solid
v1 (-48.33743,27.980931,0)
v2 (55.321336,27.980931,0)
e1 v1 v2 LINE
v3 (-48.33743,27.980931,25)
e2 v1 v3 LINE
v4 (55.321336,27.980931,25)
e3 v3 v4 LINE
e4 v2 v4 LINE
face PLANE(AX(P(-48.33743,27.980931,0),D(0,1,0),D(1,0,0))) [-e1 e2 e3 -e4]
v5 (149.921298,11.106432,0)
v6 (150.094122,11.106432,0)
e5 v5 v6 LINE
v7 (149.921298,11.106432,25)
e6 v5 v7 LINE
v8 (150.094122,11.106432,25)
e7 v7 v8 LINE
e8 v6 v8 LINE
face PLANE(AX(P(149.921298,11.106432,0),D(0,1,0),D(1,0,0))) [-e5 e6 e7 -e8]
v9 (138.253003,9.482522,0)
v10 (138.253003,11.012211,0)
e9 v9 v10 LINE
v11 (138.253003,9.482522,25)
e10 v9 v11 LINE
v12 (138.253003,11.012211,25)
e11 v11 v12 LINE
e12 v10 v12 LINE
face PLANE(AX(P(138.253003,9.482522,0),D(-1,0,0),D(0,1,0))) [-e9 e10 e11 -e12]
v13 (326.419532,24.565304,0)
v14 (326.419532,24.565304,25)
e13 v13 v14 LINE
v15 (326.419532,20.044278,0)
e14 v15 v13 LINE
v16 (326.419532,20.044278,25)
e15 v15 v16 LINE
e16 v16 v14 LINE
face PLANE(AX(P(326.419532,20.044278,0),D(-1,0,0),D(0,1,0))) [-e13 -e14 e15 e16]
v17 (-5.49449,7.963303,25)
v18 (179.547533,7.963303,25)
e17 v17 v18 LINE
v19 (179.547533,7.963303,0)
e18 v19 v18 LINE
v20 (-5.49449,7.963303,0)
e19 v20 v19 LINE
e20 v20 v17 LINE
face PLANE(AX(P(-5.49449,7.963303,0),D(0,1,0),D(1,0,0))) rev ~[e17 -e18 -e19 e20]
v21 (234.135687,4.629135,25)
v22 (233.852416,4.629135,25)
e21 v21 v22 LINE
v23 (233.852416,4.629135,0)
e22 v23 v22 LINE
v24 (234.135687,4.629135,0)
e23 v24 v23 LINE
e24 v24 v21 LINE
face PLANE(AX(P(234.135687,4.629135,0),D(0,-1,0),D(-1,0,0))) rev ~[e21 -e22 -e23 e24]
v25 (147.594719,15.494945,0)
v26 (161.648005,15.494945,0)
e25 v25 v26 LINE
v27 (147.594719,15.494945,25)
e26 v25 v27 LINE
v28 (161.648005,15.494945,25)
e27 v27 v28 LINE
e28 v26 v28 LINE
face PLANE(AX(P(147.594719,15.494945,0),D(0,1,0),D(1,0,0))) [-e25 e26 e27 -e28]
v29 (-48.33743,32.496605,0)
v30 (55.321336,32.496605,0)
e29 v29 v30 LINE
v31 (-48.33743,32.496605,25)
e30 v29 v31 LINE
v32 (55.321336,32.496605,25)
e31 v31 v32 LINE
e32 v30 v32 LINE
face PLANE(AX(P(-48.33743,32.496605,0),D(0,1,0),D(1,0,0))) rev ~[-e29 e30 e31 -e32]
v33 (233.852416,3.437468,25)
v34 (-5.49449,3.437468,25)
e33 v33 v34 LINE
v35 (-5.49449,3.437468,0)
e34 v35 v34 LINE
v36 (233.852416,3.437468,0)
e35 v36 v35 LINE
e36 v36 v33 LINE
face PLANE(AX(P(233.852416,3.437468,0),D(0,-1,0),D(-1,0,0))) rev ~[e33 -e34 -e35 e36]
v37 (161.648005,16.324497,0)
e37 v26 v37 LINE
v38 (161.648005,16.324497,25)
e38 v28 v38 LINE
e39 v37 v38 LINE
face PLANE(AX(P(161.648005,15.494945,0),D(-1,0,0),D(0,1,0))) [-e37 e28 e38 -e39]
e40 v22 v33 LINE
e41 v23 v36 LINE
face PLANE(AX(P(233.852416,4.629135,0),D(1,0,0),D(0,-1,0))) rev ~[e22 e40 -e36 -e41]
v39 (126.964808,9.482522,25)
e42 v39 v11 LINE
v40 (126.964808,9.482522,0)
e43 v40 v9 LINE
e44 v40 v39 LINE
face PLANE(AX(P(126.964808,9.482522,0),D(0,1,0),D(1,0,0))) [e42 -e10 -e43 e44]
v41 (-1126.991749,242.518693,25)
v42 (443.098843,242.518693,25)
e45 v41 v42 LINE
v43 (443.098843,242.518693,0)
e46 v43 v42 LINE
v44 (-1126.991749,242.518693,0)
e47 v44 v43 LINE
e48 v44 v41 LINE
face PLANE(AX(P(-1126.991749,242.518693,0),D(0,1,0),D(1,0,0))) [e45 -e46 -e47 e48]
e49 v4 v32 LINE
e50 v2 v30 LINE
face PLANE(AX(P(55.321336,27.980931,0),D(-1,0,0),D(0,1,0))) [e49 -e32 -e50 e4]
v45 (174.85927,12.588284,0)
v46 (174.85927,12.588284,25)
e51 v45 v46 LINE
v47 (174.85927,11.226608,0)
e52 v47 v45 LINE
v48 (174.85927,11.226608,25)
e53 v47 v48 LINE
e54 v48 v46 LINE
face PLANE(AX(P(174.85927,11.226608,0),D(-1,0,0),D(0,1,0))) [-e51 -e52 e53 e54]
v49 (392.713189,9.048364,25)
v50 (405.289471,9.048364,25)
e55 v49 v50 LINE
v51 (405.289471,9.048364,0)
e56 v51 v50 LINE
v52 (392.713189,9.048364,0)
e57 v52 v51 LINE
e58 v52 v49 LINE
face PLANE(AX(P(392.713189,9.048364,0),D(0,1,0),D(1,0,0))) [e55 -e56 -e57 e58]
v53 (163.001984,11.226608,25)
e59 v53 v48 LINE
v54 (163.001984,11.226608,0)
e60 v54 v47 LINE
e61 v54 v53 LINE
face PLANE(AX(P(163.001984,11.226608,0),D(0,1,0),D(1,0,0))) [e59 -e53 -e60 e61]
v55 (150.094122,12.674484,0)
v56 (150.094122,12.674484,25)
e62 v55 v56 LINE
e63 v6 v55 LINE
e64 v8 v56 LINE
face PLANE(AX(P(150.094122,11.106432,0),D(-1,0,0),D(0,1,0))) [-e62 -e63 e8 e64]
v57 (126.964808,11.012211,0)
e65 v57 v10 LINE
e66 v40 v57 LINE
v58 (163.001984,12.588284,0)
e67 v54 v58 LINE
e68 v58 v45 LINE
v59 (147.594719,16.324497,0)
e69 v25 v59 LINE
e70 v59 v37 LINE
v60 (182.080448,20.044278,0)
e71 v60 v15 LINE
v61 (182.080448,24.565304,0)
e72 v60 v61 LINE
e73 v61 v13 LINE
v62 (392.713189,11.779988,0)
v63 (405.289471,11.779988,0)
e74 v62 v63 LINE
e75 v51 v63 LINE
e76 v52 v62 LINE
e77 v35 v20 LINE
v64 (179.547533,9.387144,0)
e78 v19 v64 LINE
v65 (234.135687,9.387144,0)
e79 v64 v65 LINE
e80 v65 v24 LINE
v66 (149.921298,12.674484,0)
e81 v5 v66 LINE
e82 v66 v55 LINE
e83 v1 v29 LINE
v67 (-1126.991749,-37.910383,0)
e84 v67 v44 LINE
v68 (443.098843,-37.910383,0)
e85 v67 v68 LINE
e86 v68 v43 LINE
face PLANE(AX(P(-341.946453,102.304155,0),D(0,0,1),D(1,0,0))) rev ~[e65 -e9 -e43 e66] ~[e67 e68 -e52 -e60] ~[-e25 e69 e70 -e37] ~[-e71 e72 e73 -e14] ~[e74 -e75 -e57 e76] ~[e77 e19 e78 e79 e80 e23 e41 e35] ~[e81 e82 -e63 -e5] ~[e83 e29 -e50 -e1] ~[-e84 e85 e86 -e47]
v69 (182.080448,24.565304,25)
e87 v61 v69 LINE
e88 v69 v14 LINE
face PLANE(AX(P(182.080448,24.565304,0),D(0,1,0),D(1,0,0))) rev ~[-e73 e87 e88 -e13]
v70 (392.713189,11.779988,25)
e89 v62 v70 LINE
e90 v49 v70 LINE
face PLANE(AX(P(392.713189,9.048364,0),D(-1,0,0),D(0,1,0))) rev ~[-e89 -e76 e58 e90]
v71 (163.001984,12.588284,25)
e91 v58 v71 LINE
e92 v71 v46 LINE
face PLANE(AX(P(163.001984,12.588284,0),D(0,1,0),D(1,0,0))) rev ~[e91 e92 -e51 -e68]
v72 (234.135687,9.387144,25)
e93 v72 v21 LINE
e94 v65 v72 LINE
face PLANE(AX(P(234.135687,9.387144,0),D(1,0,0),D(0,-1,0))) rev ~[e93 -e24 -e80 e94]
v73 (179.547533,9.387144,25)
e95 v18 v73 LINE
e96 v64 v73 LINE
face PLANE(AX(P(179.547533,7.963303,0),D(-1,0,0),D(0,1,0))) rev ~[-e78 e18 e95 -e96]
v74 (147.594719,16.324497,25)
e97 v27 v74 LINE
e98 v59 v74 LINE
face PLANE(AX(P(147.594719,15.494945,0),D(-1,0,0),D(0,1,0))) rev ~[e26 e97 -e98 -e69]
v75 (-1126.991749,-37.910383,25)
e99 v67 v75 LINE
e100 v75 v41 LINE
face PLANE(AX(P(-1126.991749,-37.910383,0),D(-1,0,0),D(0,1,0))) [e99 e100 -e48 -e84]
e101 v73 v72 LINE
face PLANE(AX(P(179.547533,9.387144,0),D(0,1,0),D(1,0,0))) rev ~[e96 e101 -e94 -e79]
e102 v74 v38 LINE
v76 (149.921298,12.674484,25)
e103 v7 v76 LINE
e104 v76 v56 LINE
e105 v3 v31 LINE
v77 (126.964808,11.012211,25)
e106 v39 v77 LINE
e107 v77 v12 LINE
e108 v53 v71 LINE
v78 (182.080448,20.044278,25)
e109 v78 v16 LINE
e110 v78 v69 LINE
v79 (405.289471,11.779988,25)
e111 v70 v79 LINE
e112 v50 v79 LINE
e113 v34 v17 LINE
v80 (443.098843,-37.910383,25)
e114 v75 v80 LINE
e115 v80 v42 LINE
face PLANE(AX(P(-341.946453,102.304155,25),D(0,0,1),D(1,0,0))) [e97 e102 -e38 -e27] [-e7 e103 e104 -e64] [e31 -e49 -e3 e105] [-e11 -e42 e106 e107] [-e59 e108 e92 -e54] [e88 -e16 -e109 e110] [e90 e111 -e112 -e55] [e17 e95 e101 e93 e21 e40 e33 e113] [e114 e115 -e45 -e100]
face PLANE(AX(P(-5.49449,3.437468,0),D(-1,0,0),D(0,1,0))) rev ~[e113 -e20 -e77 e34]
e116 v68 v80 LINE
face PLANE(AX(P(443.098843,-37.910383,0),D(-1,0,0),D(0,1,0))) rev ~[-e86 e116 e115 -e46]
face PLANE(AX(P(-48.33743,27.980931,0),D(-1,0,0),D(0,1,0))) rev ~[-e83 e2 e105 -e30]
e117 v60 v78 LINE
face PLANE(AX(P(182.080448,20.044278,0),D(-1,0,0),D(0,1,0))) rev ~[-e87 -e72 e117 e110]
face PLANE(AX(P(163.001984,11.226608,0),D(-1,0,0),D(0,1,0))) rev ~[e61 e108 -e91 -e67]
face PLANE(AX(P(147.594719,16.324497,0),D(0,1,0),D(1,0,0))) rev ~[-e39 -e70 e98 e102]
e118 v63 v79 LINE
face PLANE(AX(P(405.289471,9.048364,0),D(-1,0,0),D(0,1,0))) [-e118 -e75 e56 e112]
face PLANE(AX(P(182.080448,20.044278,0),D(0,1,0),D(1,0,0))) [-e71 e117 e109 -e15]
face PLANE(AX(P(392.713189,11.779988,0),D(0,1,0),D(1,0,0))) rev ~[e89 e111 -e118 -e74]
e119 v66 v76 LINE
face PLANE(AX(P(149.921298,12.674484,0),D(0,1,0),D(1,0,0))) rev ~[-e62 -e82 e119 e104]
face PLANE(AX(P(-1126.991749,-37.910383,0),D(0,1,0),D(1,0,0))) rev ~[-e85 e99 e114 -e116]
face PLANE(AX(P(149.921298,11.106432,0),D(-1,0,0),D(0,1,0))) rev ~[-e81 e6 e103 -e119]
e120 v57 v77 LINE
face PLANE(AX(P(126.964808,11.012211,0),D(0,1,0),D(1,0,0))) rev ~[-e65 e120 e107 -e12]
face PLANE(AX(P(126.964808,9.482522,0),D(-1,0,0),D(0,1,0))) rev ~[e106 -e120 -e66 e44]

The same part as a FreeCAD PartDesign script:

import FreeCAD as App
import Part
import Sketcher
from FreeCAD import Vector

doc = App.newDocument("Part")
body = doc.addObject("PartDesign::Body", "Body")

sketch1 = body.newObject("Sketcher::SketchObject", "Sketch")
sketch1.AttachmentSupport = (doc.getObject("XY_Plane"), [""])
sketch1.MapMode = "FlatFace"
sketch1.addGeometry([
    Part.LineSegment(Vector(-1126.99, 242.52, 0), Vector(-1126.99, -37.91, 0)),
    Part.LineSegment(Vector(-1126.99, -37.91, 0), Vector(443.1, -37.91, 0)),
    Part.LineSegment(Vector(443.1, -37.91, 0), Vector(443.1, 242.52, 0)),
    Part.LineSegment(Vector(443.1, 242.52, 0), Vector(-1126.99, 242.52, 0)),
    Part.LineSegment(Vector(233.85, 3.44, 0), Vector(-5.49, 3.44, 0)),
    Part.LineSegment(Vector(-5.49, 3.44, 0), Vector(-5.49, 7.96, 0)),
    Part.LineSegment(Vector(-5.49, 7.96, 0), Vector(179.55, 7.96, 0)),
    Part.LineSegment(Vector(179.55, 7.96, 0), Vector(179.55, 9.39, 0)),
    Part.LineSegment(Vector(179.55, 9.39, 0), Vector(234.14, 9.39, 0)),
    Part.LineSegment(Vector(234.14, 9.39, 0), Vector(234.14, 4.63, 0)),
    Part.LineSegment(Vector(234.14, 4.63, 0), Vector(233.85, 4.63, 0)),
    Part.LineSegment(Vector(233.85, 4.63, 0), Vector(233.85, 3.44, 0)),
    Part.LineSegment(Vector(138.25, 9.48, 0), Vector(126.96, 9.48, 0)),
    Part.LineSegment(Vector(126.96, 9.48, 0), Vector(126.96, 11.01, 0)),
    Part.LineSegment(Vector(126.96, 11.01, 0), Vector(138.25, 11.01, 0)),
    Part.LineSegment(Vector(138.25, 11.01, 0), Vector(138.25, 9.48, 0)),
    Part.LineSegment(Vector(150.09, 11.11, 0), Vector(149.92, 11.11, 0)),
    Part.LineSegment(Vector(149.92, 11.11, 0), Vector(149.92, 12.67, 0)),
    Part.LineSegment(Vector(149.92, 12.67, 0), Vector(150.09, 12.67, 0)),
    Part.LineSegment(Vector(150.09, 12.67, 0), Vector(150.09, 11.11, 0)),
    Part.LineSegment(Vector(174.86, 11.23, 0), Vector(163, 11.23, 0)),
    Part.LineSegment(Vector(163, 11.23, 0), Vector(163, 12.59, 0)),
    Part.LineSegment(Vector(163, 12.59, 0), Vector(174.86, 12.59, 0)),
    Part.LineSegment(Vector(174.86, 12.59, 0), Vector(174.86, 11.23, 0)),
    Part.LineSegment(Vector(161.65, 15.49, 0), Vector(147.59, 15.49, 0)),
    Part.LineSegment(Vector(147.59, 15.49, 0), Vector(147.59, 16.32, 0)),
    Part.LineSegment(Vector(147.59, 16.32, 0), Vector(161.65, 16.32, 0)),
    Part.LineSegment(Vector(161.65, 16.32, 0), Vector(161.65, 15.49, 0)),
    Part.LineSegment(Vector(405.29, 9.05, 0), Vector(392.71, 9.05, 0)),
    Part.LineSegment(Vector(392.71, 9.05, 0), Vector(392.71, 11.78, 0)),
    Part.LineSegment(Vector(392.71, 11.78, 0), Vector(405.29, 11.78, 0)),
    Part.LineSegment(Vector(405.29, 11.78, 0), Vector(405.29, 9.05, 0)),
    Part.LineSegment(Vector(55.32, 27.98, 0), Vector(-48.34, 27.98, 0)),
    Part.LineSegment(Vector(-48.34, 27.98, 0), Vector(-48.34, 32.5, 0)),
    Part.LineSegment(Vector(-48.34, 32.5, 0), Vector(55.32, 32.5, 0)),
    Part.LineSegment(Vector(55.32, 32.5, 0), Vector(55.32, 27.98, 0)),
    Part.LineSegment(Vector(326.42, 20.04, 0), Vector(182.08, 20.04, 0)),
    Part.LineSegment(Vector(182.08, 20.04, 0), Vector(182.08, 24.57, 0)),
    Part.LineSegment(Vector(182.08, 24.57, 0), Vector(326.42, 24.57, 0)),
    Part.LineSegment(Vector(326.42, 24.57, 0), Vector(326.42, 20.04, 0)),
], False)
sketch1.addConstraint([
    Sketcher.Constraint("Coincident", 0, 2, 1, 1),
    Sketcher.Constraint("Coincident", 1, 2, 2, 1),
    Sketcher.Constraint("Coincident", 2, 2, 3, 1),
    Sketcher.Constraint("Coincident", 3, 2, 0, 1),
    Sketcher.Constraint("Coincident", 4, 2, 5, 1),
    Sketcher.Constraint("Coincident", 5, 2, 6, 1),
    Sketcher.Constraint("Coincident", 6, 2, 7, 1),
    Sketcher.Constraint("Coincident", 7, 2, 8, 1),
    Sketcher.Constraint("Coincident", 8, 2, 9, 1),
    Sketcher.Constraint("Coincident", 9, 2, 10, 1),
    Sketcher.Constraint("Coincident", 10, 2, 11, 1),
    Sketcher.Constraint("Coincident", 11, 2, 4, 1),
    Sketcher.Constraint("Coincident", 12, 2, 13, 1),
    Sketcher.Constraint("Coincident", 13, 2, 14, 1),
    Sketcher.Constraint("Coincident", 14, 2, 15, 1),
    Sketcher.Constraint("Coincident", 15, 2, 12, 1),
    Sketcher.Constraint("Coincident", 16, 2, 17, 1),
    Sketcher.Constraint("Coincident", 17, 2, 18, 1),
    Sketcher.Constraint("Coincident", 18, 2, 19, 1),
    Sketcher.Constraint("Coincident", 19, 2, 16, 1),
    Sketcher.Constraint("Coincident", 20, 2, 21, 1),
    Sketcher.Constraint("Coincident", 21, 2, 22, 1),
    Sketcher.Constraint("Coincident", 22, 2, 23, 1),
    Sketcher.Constraint("Coincident", 23, 2, 20, 1),
    Sketcher.Constraint("Coincident", 24, 2, 25, 1),
    Sketcher.Constraint("Coincident", 25, 2, 26, 1),
    Sketcher.Constraint("Coincident", 26, 2, 27, 1),
    Sketcher.Constraint("Coincident", 27, 2, 24, 1),
    Sketcher.Constraint("Coincident", 28, 2, 29, 1),
    Sketcher.Constraint("Coincident", 29, 2, 30, 1),
    Sketcher.Constraint("Coincident", 30, 2, 31, 1),
    Sketcher.Constraint("Coincident", 31, 2, 28, 1),
    Sketcher.Constraint("Coincident", 32, 2, 33, 1),
    Sketcher.Constraint("Coincident", 33, 2, 34, 1),
    Sketcher.Constraint("Coincident", 34, 2, 35, 1),
    Sketcher.Constraint("Coincident", 35, 2, 32, 1),
    Sketcher.Constraint("Coincident", 36, 2, 37, 1),
    Sketcher.Constraint("Coincident", 37, 2, 38, 1),
    Sketcher.Constraint("Coincident", 38, 2, 39, 1),
    Sketcher.Constraint("Coincident", 39, 2, 36, 1),
    Sketcher.Constraint("Vertical", 0),
    Sketcher.Constraint("Horizontal", 1),
    Sketcher.Constraint("Vertical", 2),
    Sketcher.Constraint("Horizontal", 3),
    Sketcher.Constraint("Horizontal", 4),
    Sketcher.Constraint("Vertical", 5),
    Sketcher.Constraint("Horizontal", 6),
    Sketcher.Constraint("Vertical", 7),
    Sketcher.Constraint("Horizontal", 8),
    Sketcher.Constraint("Vertical", 9),
    Sketcher.Constraint("Horizontal", 10),
    Sketcher.Constraint("Vertical", 11),
    Sketcher.Constraint("Horizontal", 12),
    Sketcher.Constraint("Vertical", 13),
    Sketcher.Constraint("Horizontal", 14),
    Sketcher.Constraint("Vertical", 15),
    Sketcher.Constraint("Horizontal", 16),
    Sketcher.Constraint("Vertical", 17),
    Sketcher.Constraint("Horizontal", 18),
    Sketcher.Constraint("Vertical", 19),
    Sketcher.Constraint("Horizontal", 20),
    Sketcher.Constraint("Vertical", 21),
    Sketcher.Constraint("Horizontal", 22),
    Sketcher.Constraint("Vertical", 23),
    Sketcher.Constraint("Horizontal", 24),
    Sketcher.Constraint("Vertical", 25),
    Sketcher.Constraint("Horizontal", 26),
    Sketcher.Constraint("Vertical", 27),
    Sketcher.Constraint("Horizontal", 28),
    Sketcher.Constraint("Vertical", 29),
    Sketcher.Constraint("Horizontal", 30),
    Sketcher.Constraint("Vertical", 31),
    Sketcher.Constraint("Horizontal", 32),
    Sketcher.Constraint("Vertical", 33),
    Sketcher.Constraint("Horizontal", 34),
    Sketcher.Constraint("Vertical", 35),
    Sketcher.Constraint("Horizontal", 36),
    Sketcher.Constraint("Vertical", 37),
    Sketcher.Constraint("Horizontal", 38),
    Sketcher.Constraint("Vertical", 39),
    Sketcher.Constraint("DistanceY", 6, 2, 37, 2, 16.602001),
    Sketcher.Constraint("DistanceX", 1, 1, 1, 2, 1570.090592),
    Sketcher.Constraint("DistanceX", 10, 2, 10, 1, 0.283271),
    Sketcher.Constraint("DistanceX", 28, 2, 28, 1, 12.576282),
    Sketcher.Constraint("DistanceY", 7, 1, 7, 2, 1.423841),
    Sketcher.Constraint("DistanceY", 9, 2, 9, 1, 4.758009),
    Sketcher.Constraint("DistanceY", 13, 1, 13, 2, 1.529689),
    Sketcher.Constraint("DistanceY", 17, 1, 17, 2, 1.568052),
    Sketcher.Constraint("DistanceX", -1, 1, 16, 2, 149.921298),
    Sketcher.Constraint("DistanceY", 21, 2, 18, 2, 0.0862),
    Sketcher.Constraint("DistanceX", 4, 2, 4, 1, 239.346906),
    Sketcher.Constraint("DistanceX", 6, 1, 6, 2, 185.042023),
    Sketcher.Constraint("DistanceX", 12, 2, 12, 1, 11.288195),
    Sketcher.Constraint("DistanceX", 16, 2, 16, 1, 0.172824),
    Sketcher.Constraint("DistanceX", 20, 2, 20, 1, 11.857286),
    Sketcher.Constraint("DistanceX", 24, 2, 24, 1, 14.053285),
    Sketcher.Constraint("DistanceX", 32, 2, 32, 1, 103.658766),
    Sketcher.Constraint("DistanceX", 36, 2, 36, 1, 144.339084),
    Sketcher.Constraint("DistanceY", 0, 2, 0, 1, 280.429076),
    Sketcher.Constraint("DistanceY", 5, 1, 5, 2, 4.525835),
    Sketcher.Constraint("DistanceY", 21, 1, 21, 2, 1.361676),
    Sketcher.Constraint("DistanceY", 25, 1, 25, 2, 0.829553),
    Sketcher.Constraint("DistanceY", 29, 1, 29, 2, 2.731625),
    Sketcher.Constraint("DistanceY", 33, 1, 33, 2, 4.515674),
    Sketcher.Constraint("DistanceY", 37, 1, 37, 2, 4.521026),
    Sketcher.Constraint("DistanceX", 0, 2, -1, 1, 1126.991749),
    Sketcher.Constraint("DistanceX", 4, 2, -1, 1, 5.49449),
    Sketcher.Constraint("DistanceY", -1, 1, 4, 2, 3.437468),
    Sketcher.Constraint("DistanceY", -1, 1, 12, 2, 9.482522),
    Sketcher.Constraint("DistanceX", -1, 1, 22, 2, 174.85927),
    Sketcher.Constraint("DistanceX", -1, 1, 24, 2, 147.594719),
    Sketcher.Constraint("DistanceX", -1, 1, 28, 2, 392.713189),
    Sketcher.Constraint("DistanceY", -1, 1, 29, 2, 11.779988),
    Sketcher.Constraint("DistanceX", 32, 2, -1, 1, 48.33743),
    Sketcher.Constraint("DistanceY", -1, 1, 32, 2, 27.980931),
    Sketcher.Constraint("DistanceX", -1, 1, 38, 2, 326.419532),
    Sketcher.Constraint("DistanceY", 1, 2, 4, 2, 41.347851),
    Sketcher.Constraint("DistanceX", 12, 2, 10, 2, 106.887608),
    Sketcher.Constraint("DistanceY", 14, 2, 16, 2, 0.094221),
    Sketcher.Constraint("DistanceY", 17, 2, 24, 2, 2.820461),
])
pad1 = body.newObject("PartDesign::Pad", "Pad")
pad1.Profile = sketch1
pad1.Length = 25

doc.recompute()
